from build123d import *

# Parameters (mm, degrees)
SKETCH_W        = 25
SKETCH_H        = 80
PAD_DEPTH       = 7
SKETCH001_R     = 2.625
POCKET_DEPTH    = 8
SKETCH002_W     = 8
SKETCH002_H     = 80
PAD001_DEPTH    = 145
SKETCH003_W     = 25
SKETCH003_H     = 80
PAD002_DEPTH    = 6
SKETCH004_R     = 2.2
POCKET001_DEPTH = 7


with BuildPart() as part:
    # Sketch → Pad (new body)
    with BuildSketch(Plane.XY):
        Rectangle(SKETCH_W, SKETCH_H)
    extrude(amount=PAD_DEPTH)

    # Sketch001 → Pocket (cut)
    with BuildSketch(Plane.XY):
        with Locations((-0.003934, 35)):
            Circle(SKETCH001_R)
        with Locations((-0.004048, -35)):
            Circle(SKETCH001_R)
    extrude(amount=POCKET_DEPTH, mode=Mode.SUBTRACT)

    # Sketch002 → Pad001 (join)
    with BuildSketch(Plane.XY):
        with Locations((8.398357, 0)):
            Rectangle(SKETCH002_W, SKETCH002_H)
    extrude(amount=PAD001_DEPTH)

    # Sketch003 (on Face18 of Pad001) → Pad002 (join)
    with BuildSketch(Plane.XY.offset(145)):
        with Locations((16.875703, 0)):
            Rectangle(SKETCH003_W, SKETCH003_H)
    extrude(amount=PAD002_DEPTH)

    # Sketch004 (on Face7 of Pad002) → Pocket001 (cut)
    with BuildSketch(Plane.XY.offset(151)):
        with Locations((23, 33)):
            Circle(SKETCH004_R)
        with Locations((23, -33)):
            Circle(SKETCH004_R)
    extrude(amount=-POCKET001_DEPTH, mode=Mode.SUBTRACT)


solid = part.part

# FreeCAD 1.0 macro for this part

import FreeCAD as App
import Part
import Sketcher

V = App.Vector


def add_polygon(sketch, points):
    """Adds a closed chain of lines whose ends are joined by coincident constraints."""
    first, n = sketch.GeometryCount, len(points)
    for a, b in zip(points, points[1:] + points[:1]):
        sketch.addGeometry(Part.LineSegment(App.Vector(*a, 0), App.Vector(*b, 0)), False)
    for i in range(n):
        sketch.addConstraint(Sketcher.Constraint("Coincident", first + i, 2, first + (i + 1) % n, 1))

doc = App.newDocument("Part")
body = doc.addObject("PartDesign::Body", "Body")

# Sketch on XY plane
sketch1 = doc.addObject("Sketcher::SketchObject", "Sketch")
body.addObject(sketch1)
sketch1.AttachmentSupport = (doc.XY_Plane, [""])
sketch1.MapMode = "FlatFace"
add_polygon(sketch1, [(-12, 40), (-12, -40), (12, -40), (12, 40)])  # lines 0-3
sketch1.addConstraint(Sketcher.Constraint("Vertical", 0))
sketch1.addConstraint(Sketcher.Constraint("Horizontal", 1))
sketch1.addConstraint(Sketcher.Constraint("Vertical", 2))
sketch1.addConstraint(Sketcher.Constraint("Horizontal", 3))
sketch1.addConstraint(Sketcher.Constraint("Symmetric", 0, 2, 2, 2, -1, 1))
sketch1.addConstraint(Sketcher.Constraint("DistanceX", 1, 1, 1, 2, 25.0))
sketch1.addConstraint(Sketcher.Constraint("DistanceY", 0, 2, 0, 1, 80.0))
pad1 = doc.addObject("PartDesign::Pad", "Pad")
body.addObject(pad1)
pad1.Profile = sketch1
pad1.Length = 7

# Sketch on XY plane
sketch2 = doc.addObject("Sketcher::SketchObject", "Sketch001")
body.addObject(sketch2)
sketch2.AttachmentSupport = (doc.XY_Plane, [""])
sketch2.MapMode = "FlatFace"
sketch2.addGeometry(Part.Circle(V(0, 35, 0), V(0, 0, 1), 2.6), False)
sketch2.addGeometry(Part.Circle(V(0, -35, 0), V(0, 0, 1), 2.6), False)
sketch2.addConstraint(Sketcher.Constraint("Equal", 0, 1))
sketch2.addConstraint(Sketcher.Constraint("Diameter", 0, 5.25))
sketch2.addConstraint(Sketcher.Constraint("DistanceY", -1, 1, 0, 3, 35.0))
sketch2.addConstraint(Sketcher.Constraint("DistanceY", 1, 3, -1, 1, 35.0))
sketch2.addConstraint(Sketcher.Constraint("DistanceX", 1, 3, -1, 1, 0.004048))
sketch2.addConstraint(Sketcher.Constraint("DistanceX", 0, 3, -1, 1, 0.003934))
pocket1 = doc.addObject("PartDesign::Pocket", "Pocket")
body.addObject(pocket1)
pocket1.Profile = sketch2
pocket1.Length = 8
pocket1.Reversed = True

# Sketch on XY plane
sketch3 = doc.addObject("Sketcher::SketchObject", "Sketch002")
body.addObject(sketch3)
sketch3.AttachmentSupport = (doc.XY_Plane, [""])
sketch3.MapMode = "FlatFace"
add_polygon(sketch3, [(4, 40), (4, -40), (12, -40), (12, 40)])  # lines 0-3
sketch3.addConstraint(Sketcher.Constraint("Vertical", 0))
sketch3.addConstraint(Sketcher.Constraint("Horizontal", 1))
sketch3.addConstraint(Sketcher.Constraint("Vertical", 2))
sketch3.addConstraint(Sketcher.Constraint("Horizontal", 3))
sketch3.addConstraint(Sketcher.Constraint("DistanceX", 1, 1, 1, 2, 8.0))
sketch3.addConstraint(Sketcher.Constraint("DistanceY", 0, 2, 0, 1, 80.0))
sketch3.addConstraint(Sketcher.Constraint("DistanceY", 0, 2, -1, 1, 40.0))
sketch3.addConstraint(Sketcher.Constraint("DistanceX", -1, 1, 0, 2, 4.398357))
pad2 = doc.addObject("PartDesign::Pad", "Pad001")
body.addObject(pad2)
pad2.Profile = sketch3
pad2.Length = 145

# Sketch on XY plane
sketch4 = doc.addObject("Sketcher::SketchObject", "Sketch003")
body.addObject(sketch4)
sketch4.AttachmentSupport = (doc.XY_Plane, [""])
sketch4.MapMode = "FlatFace"
sketch4.AttachmentOffset = App.Placement(V(0, 0, 145), App.Rotation())
add_polygon(sketch4, [(4, 40), (4, -40), (29, -40), (29, 40)])  # lines 0-3
sketch4.addConstraint(Sketcher.Constraint("Vertical", 0))
sketch4.addConstraint(Sketcher.Constraint("Horizontal", 1))
sketch4.addConstraint(Sketcher.Constraint("Vertical", 2))
sketch4.addConstraint(Sketcher.Constraint("Horizontal", 3))
sketch4.addConstraint(Sketcher.Constraint("DistanceX", 1, 1, 1, 2, 25.0))
sketch4.addConstraint(Sketcher.Constraint("DistanceY", 0, 2, 0, 1, 80.0))
sketch4.addConstraint(Sketcher.Constraint("DistanceY", 0, 2, -1, 1, 40.0))
sketch4.addConstraint(Sketcher.Constraint("DistanceX", -1, 1, 0, 2, 4.375703))
pad3 = doc.addObject("PartDesign::Pad", "Pad002")
body.addObject(pad3)
pad3.Profile = sketch4
pad3.Length = 6

# Sketch on XY plane
sketch5 = doc.addObject("Sketcher::SketchObject", "Sketch004")
body.addObject(sketch5)
sketch5.AttachmentSupport = (doc.XY_Plane, [""])
sketch5.MapMode = "FlatFace"
sketch5.AttachmentOffset = App.Placement(V(0, 0, 151), App.Rotation())
sketch5.addGeometry(Part.Circle(V(23, 33, 0), V(0, 0, 1), 2.2), False)
sketch5.addGeometry(Part.Circle(V(23, -33, 0), V(0, 0, 1), 2.2), False)
sketch5.addConstraint(Sketcher.Constraint("Equal", 0, 1))
sketch5.addConstraint(Sketcher.Constraint("Symmetric", 0, 3, 1, 3, -1))
sketch5.addConstraint(Sketcher.Constraint("Diameter", 0, 4.4))
sketch5.addConstraint(Sketcher.Constraint("DistanceX", -1, 1, 0, 3, 23.0))
sketch5.addConstraint(Sketcher.Constraint("DistanceY", -1, 1, 0, 3, 33.0))
pocket2 = doc.addObject("PartDesign::Pocket", "Pocket001")
body.addObject(pocket2)
pocket2.Profile = sketch5
pocket2.Length = 7

doc.recompute()
